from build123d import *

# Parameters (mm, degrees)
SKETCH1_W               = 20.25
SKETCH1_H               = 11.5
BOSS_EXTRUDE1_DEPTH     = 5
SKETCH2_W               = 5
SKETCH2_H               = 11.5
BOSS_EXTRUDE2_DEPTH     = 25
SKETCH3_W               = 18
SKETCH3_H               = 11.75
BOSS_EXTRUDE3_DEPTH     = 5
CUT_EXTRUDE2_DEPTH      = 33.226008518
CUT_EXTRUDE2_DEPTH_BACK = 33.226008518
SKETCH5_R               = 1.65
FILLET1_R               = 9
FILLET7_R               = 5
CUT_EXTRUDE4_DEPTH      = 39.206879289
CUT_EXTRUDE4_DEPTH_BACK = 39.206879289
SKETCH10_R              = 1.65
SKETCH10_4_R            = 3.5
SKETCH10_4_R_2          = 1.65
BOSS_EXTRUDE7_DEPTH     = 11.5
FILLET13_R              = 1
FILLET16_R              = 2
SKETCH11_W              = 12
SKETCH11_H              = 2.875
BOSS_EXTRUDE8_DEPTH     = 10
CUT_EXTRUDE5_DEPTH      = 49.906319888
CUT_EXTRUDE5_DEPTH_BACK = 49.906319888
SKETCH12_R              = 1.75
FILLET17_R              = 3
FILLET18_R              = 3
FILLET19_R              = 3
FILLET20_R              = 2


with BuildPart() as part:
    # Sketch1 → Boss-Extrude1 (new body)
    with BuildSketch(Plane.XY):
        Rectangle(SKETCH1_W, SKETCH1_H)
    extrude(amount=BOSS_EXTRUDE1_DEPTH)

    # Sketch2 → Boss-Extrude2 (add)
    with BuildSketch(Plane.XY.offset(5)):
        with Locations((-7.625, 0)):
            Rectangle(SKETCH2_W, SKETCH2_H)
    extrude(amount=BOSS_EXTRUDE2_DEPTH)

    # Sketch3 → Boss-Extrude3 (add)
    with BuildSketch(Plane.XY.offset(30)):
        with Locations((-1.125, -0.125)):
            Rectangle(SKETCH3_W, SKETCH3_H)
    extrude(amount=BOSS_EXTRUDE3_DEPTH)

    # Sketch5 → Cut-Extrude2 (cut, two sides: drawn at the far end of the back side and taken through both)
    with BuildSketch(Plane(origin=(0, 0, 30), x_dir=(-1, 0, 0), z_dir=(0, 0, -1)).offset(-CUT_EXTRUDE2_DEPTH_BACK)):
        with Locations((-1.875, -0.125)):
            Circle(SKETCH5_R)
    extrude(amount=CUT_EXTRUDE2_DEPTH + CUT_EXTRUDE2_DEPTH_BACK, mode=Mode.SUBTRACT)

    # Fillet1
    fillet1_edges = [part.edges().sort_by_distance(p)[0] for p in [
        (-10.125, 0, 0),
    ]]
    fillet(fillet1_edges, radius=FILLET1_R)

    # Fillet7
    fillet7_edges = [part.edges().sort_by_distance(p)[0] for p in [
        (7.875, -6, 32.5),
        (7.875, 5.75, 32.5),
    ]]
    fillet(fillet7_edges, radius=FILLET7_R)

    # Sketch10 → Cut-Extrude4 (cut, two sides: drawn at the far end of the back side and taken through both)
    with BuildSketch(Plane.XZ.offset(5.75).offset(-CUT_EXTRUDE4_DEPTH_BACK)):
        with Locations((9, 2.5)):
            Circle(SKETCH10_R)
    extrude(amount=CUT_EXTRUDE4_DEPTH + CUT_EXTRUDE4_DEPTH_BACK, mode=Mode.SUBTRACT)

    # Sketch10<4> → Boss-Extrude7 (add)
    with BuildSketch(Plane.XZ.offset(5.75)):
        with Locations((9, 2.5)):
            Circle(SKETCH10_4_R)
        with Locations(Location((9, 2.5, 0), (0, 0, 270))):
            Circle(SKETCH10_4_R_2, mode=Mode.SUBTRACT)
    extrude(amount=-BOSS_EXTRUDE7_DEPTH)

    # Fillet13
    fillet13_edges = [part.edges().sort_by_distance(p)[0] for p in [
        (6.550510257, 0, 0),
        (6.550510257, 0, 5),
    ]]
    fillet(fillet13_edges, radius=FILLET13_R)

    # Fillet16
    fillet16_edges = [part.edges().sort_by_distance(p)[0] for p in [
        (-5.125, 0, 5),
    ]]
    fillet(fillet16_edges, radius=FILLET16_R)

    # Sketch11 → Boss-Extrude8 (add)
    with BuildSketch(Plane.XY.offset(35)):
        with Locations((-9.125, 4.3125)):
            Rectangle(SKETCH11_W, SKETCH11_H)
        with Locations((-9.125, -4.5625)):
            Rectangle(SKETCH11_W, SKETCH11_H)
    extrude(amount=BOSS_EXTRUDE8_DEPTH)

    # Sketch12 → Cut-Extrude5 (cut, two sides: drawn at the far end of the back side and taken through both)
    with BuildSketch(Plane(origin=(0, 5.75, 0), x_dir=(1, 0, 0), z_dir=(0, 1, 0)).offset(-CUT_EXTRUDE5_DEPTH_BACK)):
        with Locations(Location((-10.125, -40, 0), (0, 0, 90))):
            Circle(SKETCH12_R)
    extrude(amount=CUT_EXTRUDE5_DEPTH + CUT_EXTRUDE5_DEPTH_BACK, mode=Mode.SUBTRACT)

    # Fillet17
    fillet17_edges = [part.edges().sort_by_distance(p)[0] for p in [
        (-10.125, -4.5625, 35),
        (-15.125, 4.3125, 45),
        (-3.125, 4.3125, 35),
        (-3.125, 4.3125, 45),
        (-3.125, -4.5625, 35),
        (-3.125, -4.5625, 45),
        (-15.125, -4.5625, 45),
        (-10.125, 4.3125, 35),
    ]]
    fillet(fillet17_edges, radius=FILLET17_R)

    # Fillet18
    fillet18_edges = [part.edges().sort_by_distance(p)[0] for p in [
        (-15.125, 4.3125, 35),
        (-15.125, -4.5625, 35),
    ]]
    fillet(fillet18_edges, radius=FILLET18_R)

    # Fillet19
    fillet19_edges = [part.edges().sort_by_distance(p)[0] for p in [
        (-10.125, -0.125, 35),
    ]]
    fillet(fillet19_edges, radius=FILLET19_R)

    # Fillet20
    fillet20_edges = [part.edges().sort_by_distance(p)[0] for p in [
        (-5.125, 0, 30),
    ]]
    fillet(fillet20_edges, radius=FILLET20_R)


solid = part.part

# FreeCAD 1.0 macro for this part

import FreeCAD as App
import Part
import Sketcher

V = App.Vector


def edges_at(feature, points):
    """Names of the edges that pass closest to the given points."""
    edges = feature.Shape.Edges
    near = lambda p: min(range(len(edges)), key=lambda i: edges[i].distToShape(Part.Vertex(*p))[0])
    return sorted({f"Edge{near(p) + 1}" for p in points})

doc = App.newDocument("Part")
body = doc.addObject("PartDesign::Body", "Body")

# Sketch on XY plane
sketch1 = doc.addObject("Sketcher::SketchObject", "Sketch")
body.addObject(sketch1)
sketch1.AttachmentSupport = (doc.XY_Plane, [""])
sketch1.MapMode = "FlatFace"
sketch1.addGeometry(Part.LineSegment(V(-10, 6, 0), V(-10, -6, 0)), False)
sketch1.addGeometry(Part.LineSegment(V(-10, -6, 0), V(10, -6, 0)), False)
sketch1.addGeometry(Part.LineSegment(V(10, -6, 0), V(10, 6, 0)), False)
sketch1.addGeometry(Part.LineSegment(V(10, 6, 0), V(-10, 6, 0)), False)
sketch1.addConstraint(Sketcher.Constraint("Coincident", 0, 2, 1, 1))
sketch1.addConstraint(Sketcher.Constraint("Coincident", 1, 2, 2, 1))
sketch1.addConstraint(Sketcher.Constraint("Coincident", 2, 2, 3, 1))
sketch1.addConstraint(Sketcher.Constraint("Coincident", 3, 2, 0, 1))
sketch1.addConstraint(Sketcher.Constraint("Vertical", 0))
sketch1.addConstraint(Sketcher.Constraint("Horizontal", 1))
sketch1.addConstraint(Sketcher.Constraint("Vertical", 2))
sketch1.addConstraint(Sketcher.Constraint("Horizontal", 3))
sketch1.addConstraint(Sketcher.Constraint("Symmetric", 0, 2, 2, 2, -1, 1))
sketch1.addConstraint(Sketcher.Constraint("DistanceY", 0, 2, 0, 1, 11.5))
sketch1.addConstraint(Sketcher.Constraint("DistanceX", 1, 1, 1, 2, 20.25))
pad1 = doc.addObject("PartDesign::Pad", "Pad")
body.addObject(pad1)
pad1.Profile = sketch1
pad1.Length = 5

# Sketch on XY plane
sketch2 = doc.addObject("Sketcher::SketchObject", "Sketch001")
body.addObject(sketch2)
sketch2.AttachmentSupport = (doc.XY_Plane, [""])
sketch2.MapMode = "FlatFace"
sketch2.AttachmentOffset = App.Placement(V(0, 0, 5), App.Rotation())
sketch2.addGeometry(Part.LineSegment(V(-10, 6, 0), V(-10, -6, 0)), False)
sketch2.addGeometry(Part.LineSegment(V(-10, -6, 0), V(-5, -6, 0)), False)
sketch2.addGeometry(Part.LineSegment(V(-5, -6, 0), V(-5, 6, 0)), False)
sketch2.addGeometry(Part.LineSegment(V(-5, 6, 0), V(-10, 6, 0)), False)
sketch2.addConstraint(Sketcher.Constraint("Coincident", 0, 2, 1, 1))
sketch2.addConstraint(Sketcher.Constraint("Coincident", 1, 2, 2, 1))
sketch2.addConstraint(Sketcher.Constraint("Coincident", 2, 2, 3, 1))
sketch2.addConstraint(Sketcher.Constraint("Coincident", 3, 2, 0, 1))
sketch2.addConstraint(Sketcher.Constraint("Vertical", 0))
sketch2.addConstraint(Sketcher.Constraint("Horizontal", 1))
sketch2.addConstraint(Sketcher.Constraint("Vertical", 2))
sketch2.addConstraint(Sketcher.Constraint("Horizontal", 3))
sketch2.addConstraint(Sketcher.Constraint("DistanceX", 1, 1, 1, 2, 5.0))
sketch2.addConstraint(Sketcher.Constraint("DistanceY", 0, 2, 0, 1, 11.5))
sketch2.addConstraint(Sketcher.Constraint("DistanceY", 0, 2, -1, 1, 5.75))
sketch2.addConstraint(Sketcher.Constraint("DistanceX", 0, 2, -1, 1, 10.125))
pad2 = doc.addObject("PartDesign::Pad", "Pad001")
body.addObject(pad2)
pad2.Profile = sketch2
pad2.Length = 25

# Sketch on XY plane
sketch3 = doc.addObject("Sketcher::SketchObject", "Sketch002")
body.addObject(sketch3)
sketch3.AttachmentSupport = (doc.XY_Plane, [""])
sketch3.MapMode = "FlatFace"
sketch3.AttachmentOffset = App.Placement(V(0, 0, 30), App.Rotation())
sketch3.addGeometry(Part.LineSegment(V(-10, 6, 0), V(-10, -6, 0)), False)
sketch3.addGeometry(Part.LineSegment(V(-10, -6, 0), V(8, -6, 0)), False)
sketch3.addGeometry(Part.LineSegment(V(8, -6, 0), V(8, 6, 0)), False)
sketch3.addGeometry(Part.LineSegment(V(8, 6, 0), V(-10, 6, 0)), False)
sketch3.addConstraint(Sketcher.Constraint("Coincident", 0, 2, 1, 1))
sketch3.addConstraint(Sketcher.Constraint("Coincident", 1, 2, 2, 1))
sketch3.addConstraint(Sketcher.Constraint("Coincident", 2, 2, 3, 1))
sketch3.addConstraint(Sketcher.Constraint("Coincident", 3, 2, 0, 1))
sketch3.addConstraint(Sketcher.Constraint("Vertical", 0))
sketch3.addConstraint(Sketcher.Constraint("Horizontal", 1))
sketch3.addConstraint(Sketcher.Constraint("Vertical", 2))
sketch3.addConstraint(Sketcher.Constraint("Horizontal", 3))
sketch3.addConstraint(Sketcher.Constraint("DistanceX", 1, 1, 1, 2, 18.0))
sketch3.addConstraint(Sketcher.Constraint("DistanceY", 0, 2, -1, 1, 6.0))
sketch3.addConstraint(Sketcher.Constraint("DistanceY", 0, 2, 0, 1, 11.75))
sketch3.addConstraint(Sketcher.Constraint("DistanceX", 0, 2, -1, 1, 10.125))
pad3 = doc.addObject("PartDesign::Pad", "Pad002")
body.addObject(pad3)
pad3.Profile = sketch3
pad3.Length = 5

# Sketch on XY plane
sketch4 = doc.addObject("Sketcher::SketchObject", "Sketch003")
body.addObject(sketch4)
sketch4.AttachmentSupport = (doc.XY_Plane, [""])
sketch4.MapMode = "FlatFace"
sketch4.AttachmentOffset = App.Placement(V(0, 0, 30), App.Rotation())
sketch4.addGeometry(Part.Circle(V(1.9, -0.1, 0), V(0, 0, 1), 1.6), False)
sketch4.addConstraint(Sketcher.Constraint("Diameter", 0, 3.3))
sketch4.addConstraint(Sketcher.Constraint("DistanceX", -1, 1, 0, 3, 1.875))
sketch4.addConstraint(Sketcher.Constraint("DistanceY", 0, 3, -1, 1, 0.125))
pocket1 = doc.addObject("PartDesign::Pocket", "Pocket")
body.addObject(pocket1)
pocket1.Profile = sketch4
pocket1.Type = "ThroughAll"
pocket1.Midplane = True
doc.recompute()

fillet = doc.addObject("PartDesign::Fillet", "Fillet")
body.addObject(fillet)
fillet.Base = (pocket1, edges_at(pocket1, [(-10.125, 0, 0)]))
fillet.Radius = 9
doc.recompute()

fillet2 = doc.addObject("PartDesign::Fillet", "Fillet001")
body.addObject(fillet2)
fillet2.Base = (fillet, edges_at(fillet, [(7.875, -6, 32.5), (7.875, 5.75, 32.5)]))
fillet2.Radius = 5

# Sketch on XZ plane
sketch5 = doc.addObject("Sketcher::SketchObject", "Sketch004")
body.addObject(sketch5)
sketch5.AttachmentSupport = (doc.XZ_Plane, [""])
sketch5.MapMode = "FlatFace"
sketch5.AttachmentOffset = App.Placement(V(0, 0, 5.75), App.Rotation())
sketch5.addGeometry(Part.Circle(V(9, 2.5, 0), V(0, 0, 1), 1.6), False)
sketch5.addConstraint(Sketcher.Constraint("Diameter", 0, 3.3))
sketch5.addConstraint(Sketcher.Constraint("DistanceX", -1, 1, 0, 3, 9.0))
sketch5.addConstraint(Sketcher.Constraint("DistanceY", -1, 1, 0, 3, 2.5))
pocket2 = doc.addObject("PartDesign::Pocket", "Pocket001")
body.addObject(pocket2)
pocket2.Profile = sketch5
pocket2.Type = "ThroughAll"
pocket2.Midplane = True

# Sketch on XZ plane
sketch6 = doc.addObject("Sketcher::SketchObject", "Sketch005")
body.addObject(sketch6)
sketch6.AttachmentSupport = (doc.XZ_Plane, [""])
sketch6.MapMode = "FlatFace"
sketch6.AttachmentOffset = App.Placement(V(0, 0, 5.75), App.Rotation())
sketch6.addGeometry(Part.Circle(V(9, 2.5, 0), V(0, 0, 1), 3.5), False)
sketch6.addGeometry(Part.Circle(V(9, 2.5, 0), V(0, 0, 1), 1.6), False)
sketch6.addConstraint(Sketcher.Constraint("Coincident", 1, 3, 0, 3))
sketch6.addConstraint(Sketcher.Constraint("Diameter", 0, 7.0))
sketch6.addConstraint(Sketcher.Constraint("Diameter", 1, 3.3))
sketch6.addConstraint(Sketcher.Constraint("DistanceX", -1, 1, 0, 3, 9.0))
sketch6.addConstraint(Sketcher.Constraint("DistanceY", -1, 1, 0, 3, 2.5))
pad4 = doc.addObject("PartDesign::Pad", "Pad003")
body.addObject(pad4)
pad4.Profile = sketch6
pad4.Length = 11.5
pad4.Reversed = True
doc.recompute()

fillet3 = doc.addObject("PartDesign::Fillet", "Fillet002")
body.addObject(fillet3)
fillet3.Base = (pad4, edges_at(pad4, [(6.551, 0, 0), (6.551, 0, 5)]))
fillet3.Radius = 1
doc.recompute()

fillet4 = doc.addObject("PartDesign::Fillet", "Fillet003")
body.addObject(fillet4)
fillet4.Base = (fillet3, edges_at(fillet3, [(-5.125, 0, 5)]))
fillet4.Radius = 2

# Sketch on XY plane
sketch7 = doc.addObject("Sketcher::SketchObject", "Sketch006")
body.addObject(sketch7)
sketch7.AttachmentSupport = (doc.XY_Plane, [""])
sketch7.MapMode = "FlatFace"
sketch7.AttachmentOffset = App.Placement(V(0, 0, 35), App.Rotation())
sketch7.addGeometry(Part.LineSegment(V(-15.1, 5.8, 0), V(-15.1, 2.9, 0)), False)
sketch7.addGeometry(Part.LineSegment(V(-15.1, 2.9, 0), V(-3.1, 2.9, 0)), False)
sketch7.addGeometry(Part.LineSegment(V(-3.1, 2.9, 0), V(-3.1, 5.8, 0)), False)
sketch7.addGeometry(Part.LineSegment(V(-3.1, 5.8, 0), V(-15.1, 5.8, 0)), False)
sketch7.addGeometry(Part.LineSegment(V(-15.1, -3.1, 0), V(-15.1, -6, 0)), False)
sketch7.addGeometry(Part.LineSegment(V(-15.1, -6, 0), V(-3.1, -6, 0)), False)
sketch7.addGeometry(Part.LineSegment(V(-3.1, -6, 0), V(-3.1, -3.1, 0)), False)
sketch7.addGeometry(Part.LineSegment(V(-3.1, -3.1, 0), V(-15.1, -3.1, 0)), False)
sketch7.addConstraint(Sketcher.Constraint("Coincident", 0, 2, 1, 1))
sketch7.addConstraint(Sketcher.Constraint("Coincident", 1, 2, 2, 1))
sketch7.addConstraint(Sketcher.Constraint("Coincident", 2, 2, 3, 1))
sketch7.addConstraint(Sketcher.Constraint("Coincident", 3, 2, 0, 1))
sketch7.addConstraint(Sketcher.Constraint("Coincident", 4, 2, 5, 1))
sketch7.addConstraint(Sketcher.Constraint("Coincident", 5, 2, 6, 1))
sketch7.addConstraint(Sketcher.Constraint("Coincident", 6, 2, 7, 1))
sketch7.addConstraint(Sketcher.Constraint("Coincident", 7, 2, 4, 1))
sketch7.addConstraint(Sketcher.Constraint("Vertical", 0))
sketch7.addConstraint(Sketcher.Constraint("Horizontal", 1))
sketch7.addConstraint(Sketcher.Constraint("Vertical", 2))
sketch7.addConstraint(Sketcher.Constraint("Horizontal", 3))
sketch7.addConstraint(Sketcher.Constraint("Vertical", 4))
sketch7.addConstraint(Sketcher.Constraint("Horizontal", 5))
sketch7.addConstraint(Sketcher.Constraint("Vertical", 6))
sketch7.addConstraint(Sketcher.Constraint("Horizontal", 7))
sketch7.addConstraint(Sketcher.Constraint("Vertical", 3, 2, 4, 2))
sketch7.addConstraint(Sketcher.Constraint("Vertical", 2, 2, 5, 2))
sketch7.addConstraint(Sketcher.Constraint("Equal", 2, 4))
sketch7.addConstraint(Sketcher.Constraint("DistanceX", 1, 1, 1, 2, 12.0))
sketch7.addConstraint(Sketcher.Constraint("DistanceY", 4, 2, -1, 1, 6.0))
sketch7.addConstraint(Sketcher.Constraint("DistanceY", 6, 2, 1, 2, 6.0))
sketch7.addConstraint(Sketcher.Constraint("DistanceY", 0, 2, 0, 1, 2.875))
sketch7.addConstraint(Sketcher.Constraint("DistanceX", 0, 2, -1, 1, 15.125))
pad5 = doc.addObject("PartDesign::Pad", "Pad004")
body.addObject(pad5)
pad5.Profile = sketch7
pad5.Length = 10

# Sketch on XZ plane
sketch8 = doc.addObject("Sketcher::SketchObject", "Sketch007")
body.addObject(sketch8)
sketch8.AttachmentSupport = (doc.XZ_Plane, [""])
sketch8.MapMode = "FlatFace"
sketch8.AttachmentOffset = App.Placement(V(0, 0, -5.75), App.Rotation())
sketch8.addGeometry(Part.Circle(V(-10.1, 40, 0), V(0, 0, 1), 1.8), False)
sketch8.addConstraint(Sketcher.Constraint("Diameter", 0, 3.5))
sketch8.addConstraint(Sketcher.Constraint("DistanceY", -1, 1, 0, 3, 40.0))
sketch8.addConstraint(Sketcher.Constraint("DistanceX", 0, 3, -1, 1, 10.125))
pocket3 = doc.addObject("PartDesign::Pocket", "Pocket002")
body.addObject(pocket3)
pocket3.Profile = sketch8
pocket3.Type = "ThroughAll"
pocket3.Midplane = True
doc.recompute()

fillet5 = doc.addObject("PartDesign::Fillet", "Fillet004")
body.addObject(fillet5)
fillet5.Base = (pocket3, edges_at(pocket3, [
    (-10.125, -4.562, 35),
    (-15.125, 4.312, 45),
    (-3.125, 4.312, 35),
    (-3.125, 4.312, 45),
    (-3.125, -4.562, 35),
    (-3.125, -4.562, 45),
    (-15.125, -4.562, 45),
    (-10.125, 4.312, 35),
]))
fillet5.Radius = 3
doc.recompute()

fillet6 = doc.addObject("PartDesign::Fillet", "Fillet005")
body.addObject(fillet6)
fillet6.Base = (fillet5, edges_at(fillet5, [(-15.125, 4.312, 35), (-15.125, -4.562, 35)]))
fillet6.Radius = 3
doc.recompute()

fillet7 = doc.addObject("PartDesign::Fillet", "Fillet006")
body.addObject(fillet7)
fillet7.Base = (fillet6, edges_at(fillet6, [(-10.125, -0.125, 35)]))
fillet7.Radius = 3
doc.recompute()

fillet8 = doc.addObject("PartDesign::Fillet", "Fillet007")
body.addObject(fillet8)
fillet8.Base = (fillet7, edges_at(fillet7, [(-5.125, 0, 30)]))
fillet8.Radius = 2

doc.recompute()
